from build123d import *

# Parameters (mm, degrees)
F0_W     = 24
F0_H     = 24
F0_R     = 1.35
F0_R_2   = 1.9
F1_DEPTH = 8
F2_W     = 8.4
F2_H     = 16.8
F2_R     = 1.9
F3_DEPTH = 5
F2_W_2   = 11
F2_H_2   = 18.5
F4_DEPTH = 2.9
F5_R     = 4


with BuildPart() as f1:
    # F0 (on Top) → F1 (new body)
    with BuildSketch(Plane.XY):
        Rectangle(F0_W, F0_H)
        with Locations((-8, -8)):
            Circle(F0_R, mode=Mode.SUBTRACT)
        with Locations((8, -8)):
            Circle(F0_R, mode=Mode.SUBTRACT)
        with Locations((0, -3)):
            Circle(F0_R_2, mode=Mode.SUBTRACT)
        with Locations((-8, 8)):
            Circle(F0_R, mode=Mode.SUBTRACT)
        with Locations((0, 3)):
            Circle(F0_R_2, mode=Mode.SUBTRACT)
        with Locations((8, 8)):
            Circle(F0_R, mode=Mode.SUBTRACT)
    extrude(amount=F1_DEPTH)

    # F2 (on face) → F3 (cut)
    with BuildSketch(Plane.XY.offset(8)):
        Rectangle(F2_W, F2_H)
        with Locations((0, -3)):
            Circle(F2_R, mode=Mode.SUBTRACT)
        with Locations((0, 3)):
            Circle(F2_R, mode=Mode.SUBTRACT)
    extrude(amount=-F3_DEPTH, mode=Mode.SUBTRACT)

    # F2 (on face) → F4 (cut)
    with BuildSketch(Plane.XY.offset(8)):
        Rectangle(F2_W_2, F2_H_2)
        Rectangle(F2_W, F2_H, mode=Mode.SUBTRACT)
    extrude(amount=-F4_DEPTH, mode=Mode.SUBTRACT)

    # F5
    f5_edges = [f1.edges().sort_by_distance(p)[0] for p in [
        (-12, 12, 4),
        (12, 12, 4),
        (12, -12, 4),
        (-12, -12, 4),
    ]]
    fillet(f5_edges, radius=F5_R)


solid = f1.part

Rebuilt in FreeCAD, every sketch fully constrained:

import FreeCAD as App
import Part
import Sketcher
from FreeCAD import Vector
Q = App.Units.Quantity


def edges_at(feature, points):
    """Names of the edges that pass closest to the given points."""
    edges = feature.Shape.Edges
    near = lambda p: min(range(len(edges)), key=lambda i: edges[i].distToShape(Part.Vertex(*p))[0])
    return sorted({f"Edge{near(p) + 1}" for p in points})

doc = App.newDocument("Part")
body = doc.addObject("PartDesign::Body", "Body")

sketch1 = doc.addObject("Sketcher::SketchObject", "Sketch")
body.addObject(sketch1)
sketch1.AttachmentSupport = (doc.XY_Plane, [""])
sketch1.MapMode = "FlatFace"
sketch1.addGeometry([
    Part.LineSegment(Vector(-12, 12, 0), Vector(-12, -12, 0)),
    Part.LineSegment(Vector(-12, -12, 0), Vector(12, -12, 0)),
    Part.LineSegment(Vector(12, -12, 0), Vector(12, 12, 0)),
    Part.LineSegment(Vector(12, 12, 0), Vector(-12, 12, 0)),
    Part.Circle(Vector(-8, -8, 0), Vector(0, 0, 1), 1.4),
    Part.Circle(Vector(0, -3, 0), Vector(0, 0, 1), 1.9),
    Part.Circle(Vector(8, -8, 0), Vector(0, 0, 1), 1.4),
    Part.Circle(Vector(0, 3, 0), Vector(0, 0, 1), 1.9),
    Part.Circle(Vector(-8, 8, 0), Vector(0, 0, 1), 1.4),
    Part.Circle(Vector(8, 8, 0), Vector(0, 0, 1), 1.4),
], False)
sketch1.addConstraint([
    Sketcher.Constraint("Coincident", 0, 2, 1, 1),
    Sketcher.Constraint("Coincident", 1, 2, 2, 1),
    Sketcher.Constraint("Coincident", 2, 2, 3, 1),
    Sketcher.Constraint("Coincident", 3, 2, 0, 1),
    Sketcher.Constraint("Vertical", 0),
    Sketcher.Constraint("Horizontal", 1),
    Sketcher.Constraint("Vertical", 2),
    Sketcher.Constraint("Horizontal", 3),
    Sketcher.Constraint("Equal", 4, 6),
    Sketcher.Constraint("Equal", 5, 7),
    Sketcher.Constraint("Equal", 6, 8),
    Sketcher.Constraint("Equal", 8, 9),
    Sketcher.Constraint("Symmetric", 5, 3, 7, 3, -1, 1),
    Sketcher.Constraint("Symmetric", 6, 3, 8, 3, -1, 1),
    Sketcher.Constraint("Symmetric", 4, 3, 9, 3, -1, 1),
    Sketcher.Constraint("Symmetric", 0, 2, 2, 2, -1, 1),
    Sketcher.Constraint("Symmetric", 4, 3, 6, 3, -2),
    Sketcher.Constraint("PointOnObject", 5, 3, -2),
    Sketcher.Constraint("Equal", 3, 0),
    Sketcher.Constraint("Diameter", 4, Q("2.7 mm")),
    Sketcher.Constraint("Diameter", 5, Q("3.8 mm")),
    Sketcher.Constraint("DistanceX", 1, 1, 1, 2, Q("24 mm")),
    Sketcher.Constraint("DistanceX", 4, 3, -1, 1, Q("8 mm")),
    Sketcher.Constraint("DistanceY", 4, 3, -1, 1, Q("8 mm")),
    Sketcher.Constraint("DistanceY", 5, 3, -1, 1, Q("3 mm")),
])
pad1 = doc.addObject("PartDesign::Pad", "Pad")
body.addObject(pad1)
pad1.Profile = sketch1
pad1.Length = 8

sketch2 = doc.addObject("Sketcher::SketchObject", "Sketch001")
body.addObject(sketch2)
sketch2.AttachmentSupport = (doc.XY_Plane, [""])
sketch2.MapMode = "FlatFace"
sketch2.AttachmentOffset = App.Placement(Vector(0, 0, 8), App.Rotation())
sketch2.addGeometry([
    Part.LineSegment(Vector(-4.2, 8.4, 0), Vector(-4.2, -8.4, 0)),
    Part.LineSegment(Vector(-4.2, -8.4, 0), Vector(4.2, -8.4, 0)),
    Part.LineSegment(Vector(4.2, -8.4, 0), Vector(4.2, 8.4, 0)),
    Part.LineSegment(Vector(4.2, 8.4, 0), Vector(-4.2, 8.4, 0)),
    Part.Circle(Vector(0, -3, 0), Vector(0, 0, 1), 1.9),
    Part.Circle(Vector(0, 3, 0), Vector(0, 0, 1), 1.9),
], False)
sketch2.addConstraint([
    Sketcher.Constraint("Coincident", 0, 2, 1, 1),
    Sketcher.Constraint("Coincident", 1, 2, 2, 1),
    Sketcher.Constraint("Coincident", 2, 2, 3, 1),
    Sketcher.Constraint("Coincident", 3, 2, 0, 1),
    Sketcher.Constraint("Vertical", 0),
    Sketcher.Constraint("Horizontal", 1),
    Sketcher.Constraint("Vertical", 2),
    Sketcher.Constraint("Horizontal", 3),
    Sketcher.Constraint("Equal", 4, 5),
    Sketcher.Constraint("Symmetric", 4, 3, 5, 3, -1, 1),
    Sketcher.Constraint("Symmetric", 0, 2, 2, 2, -1, 1),
    Sketcher.Constraint("PointOnObject", 4, 3, -2),
    Sketcher.Constraint("Diameter", 4, Q("3.8 mm")),
    Sketcher.Constraint("DistanceX", 1, 1, 1, 2, Q("8.4 mm")),
    Sketcher.Constraint("DistanceY", 0, 2, 0, 1, Q("16.8 mm")),
    Sketcher.Constraint("DistanceY", 4, 3, -1, 1, Q("3 mm")),
])
pocket1 = doc.addObject("PartDesign::Pocket", "Pocket")
body.addObject(pocket1)
pocket1.Profile = sketch2
pocket1.Length = 5

sketch3 = doc.addObject("Sketcher::SketchObject", "Sketch002")
body.addObject(sketch3)
sketch3.AttachmentSupport = (doc.XY_Plane, [""])
sketch3.MapMode = "FlatFace"
sketch3.AttachmentOffset = App.Placement(Vector(0, 0, 8), App.Rotation())
sketch3.addGeometry([
    Part.LineSegment(Vector(-6, 9, 0), Vector(-6, -9, 0)),
    Part.LineSegment(Vector(-6, -9, 0), Vector(6, -9, 0)),
    Part.LineSegment(Vector(6, -9, 0), Vector(6, 9, 0)),
    Part.LineSegment(Vector(6, 9, 0), Vector(-6, 9, 0)),
    Part.LineSegment(Vector(4, -8, 0), Vector(-4, -8, 0)),
    Part.LineSegment(Vector(-4, -8, 0), Vector(-4, 8, 0)),
    Part.LineSegment(Vector(-4, 8, 0), Vector(4, 8, 0)),
    Part.LineSegment(Vector(4, 8, 0), Vector(4, -8, 0)),
], False)
sketch3.addConstraint([
    Sketcher.Constraint("Coincident", 0, 2, 1, 1),
    Sketcher.Constraint("Coincident", 1, 2, 2, 1),
    Sketcher.Constraint("Coincident", 2, 2, 3, 1),
    Sketcher.Constraint("Coincident", 3, 2, 0, 1),
    Sketcher.Constraint("Coincident", 4, 2, 5, 1),
    Sketcher.Constraint("Coincident", 5, 2, 6, 1),
    Sketcher.Constraint("Coincident", 6, 2, 7, 1),
    Sketcher.Constraint("Coincident", 7, 2, 4, 1),
    Sketcher.Constraint("Vertical", 0),
    Sketcher.Constraint("Horizontal", 1),
    Sketcher.Constraint("Vertical", 2),
    Sketcher.Constraint("Horizontal", 3),
    Sketcher.Constraint("Horizontal", 4),
    Sketcher.Constraint("Vertical", 5),
    Sketcher.Constraint("Horizontal", 6),
    Sketcher.Constraint("Vertical", 7),
    Sketcher.Constraint("Symmetric", 0, 2, 2, 2, -1, 1),
    Sketcher.Constraint("Symmetric", 4, 2, 6, 2, -1, 1),
    Sketcher.Constraint("DistanceX", 1, 1, 1, 2, Q("11 mm")),
    Sketcher.Constraint("DistanceX", 4, 2, 4, 1, Q("8.4 mm")),
    Sketcher.Constraint("DistanceY", 0, 2, 0, 1, Q("18.5 mm")),
    Sketcher.Constraint("DistanceY", 5, 1, 5, 2, Q("16.8 mm")),
])
pocket2 = doc.addObject("PartDesign::Pocket", "Pocket001")
body.addObject(pocket2)
pocket2.Profile = sketch3
pocket2.Length = 2.9
doc.recompute()

fillet = doc.addObject("PartDesign::Fillet", "Fillet")
body.addObject(fillet)
fillet.Base = (pocket2, edges_at(pocket2, [
    (-12, 12, 4),
    (12, 12, 4),
    (12, -12, 4),
    (-12, -12, 4),
]))
fillet.Radius = 4

doc.recompute()
